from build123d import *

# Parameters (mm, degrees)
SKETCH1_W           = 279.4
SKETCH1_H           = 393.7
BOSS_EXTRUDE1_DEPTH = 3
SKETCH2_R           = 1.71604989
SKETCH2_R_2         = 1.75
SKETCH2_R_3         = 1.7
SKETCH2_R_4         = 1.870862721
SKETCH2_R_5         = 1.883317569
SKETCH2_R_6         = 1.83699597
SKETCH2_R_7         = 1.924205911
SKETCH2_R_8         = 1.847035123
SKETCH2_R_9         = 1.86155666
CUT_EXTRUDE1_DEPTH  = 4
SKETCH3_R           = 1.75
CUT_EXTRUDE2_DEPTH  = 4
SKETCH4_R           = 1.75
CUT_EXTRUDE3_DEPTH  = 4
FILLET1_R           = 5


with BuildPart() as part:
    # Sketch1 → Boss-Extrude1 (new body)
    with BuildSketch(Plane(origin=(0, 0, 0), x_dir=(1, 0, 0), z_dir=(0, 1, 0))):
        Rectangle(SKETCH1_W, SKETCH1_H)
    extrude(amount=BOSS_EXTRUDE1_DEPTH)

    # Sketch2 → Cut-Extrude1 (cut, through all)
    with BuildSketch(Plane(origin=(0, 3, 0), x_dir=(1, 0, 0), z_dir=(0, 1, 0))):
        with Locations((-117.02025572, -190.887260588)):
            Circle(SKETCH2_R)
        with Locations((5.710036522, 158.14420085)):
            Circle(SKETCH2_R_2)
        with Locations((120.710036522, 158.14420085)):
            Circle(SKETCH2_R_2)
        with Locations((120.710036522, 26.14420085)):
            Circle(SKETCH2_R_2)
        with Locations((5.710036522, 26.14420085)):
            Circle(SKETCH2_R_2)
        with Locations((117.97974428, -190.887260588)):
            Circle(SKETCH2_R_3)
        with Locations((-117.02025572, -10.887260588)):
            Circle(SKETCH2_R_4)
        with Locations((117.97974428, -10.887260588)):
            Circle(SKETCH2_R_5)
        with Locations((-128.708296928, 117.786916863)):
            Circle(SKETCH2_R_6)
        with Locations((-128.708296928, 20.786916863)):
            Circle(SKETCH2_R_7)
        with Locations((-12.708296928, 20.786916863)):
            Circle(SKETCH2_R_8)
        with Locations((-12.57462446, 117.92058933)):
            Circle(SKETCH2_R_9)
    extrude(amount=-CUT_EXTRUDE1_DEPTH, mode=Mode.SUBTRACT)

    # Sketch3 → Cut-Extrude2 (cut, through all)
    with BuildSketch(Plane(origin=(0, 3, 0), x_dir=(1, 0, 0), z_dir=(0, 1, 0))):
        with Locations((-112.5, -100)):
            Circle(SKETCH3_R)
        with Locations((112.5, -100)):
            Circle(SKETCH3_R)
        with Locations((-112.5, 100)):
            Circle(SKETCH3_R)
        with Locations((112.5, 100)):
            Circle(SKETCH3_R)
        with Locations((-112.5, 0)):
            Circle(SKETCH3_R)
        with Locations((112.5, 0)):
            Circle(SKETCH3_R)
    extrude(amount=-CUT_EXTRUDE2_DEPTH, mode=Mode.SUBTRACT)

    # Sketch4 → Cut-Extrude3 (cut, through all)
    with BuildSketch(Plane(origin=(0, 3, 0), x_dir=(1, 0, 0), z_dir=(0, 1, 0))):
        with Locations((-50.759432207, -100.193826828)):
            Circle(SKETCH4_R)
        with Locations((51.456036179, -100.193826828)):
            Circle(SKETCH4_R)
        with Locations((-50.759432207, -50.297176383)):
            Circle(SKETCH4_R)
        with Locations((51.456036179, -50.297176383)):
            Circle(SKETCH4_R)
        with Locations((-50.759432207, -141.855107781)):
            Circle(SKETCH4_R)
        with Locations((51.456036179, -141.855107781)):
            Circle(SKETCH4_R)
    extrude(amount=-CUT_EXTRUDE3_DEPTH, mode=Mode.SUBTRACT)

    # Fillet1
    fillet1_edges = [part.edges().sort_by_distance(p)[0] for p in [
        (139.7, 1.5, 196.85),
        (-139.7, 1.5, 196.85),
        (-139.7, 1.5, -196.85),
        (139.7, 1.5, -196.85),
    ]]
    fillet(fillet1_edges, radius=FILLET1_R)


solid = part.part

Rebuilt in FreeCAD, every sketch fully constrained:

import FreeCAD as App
import Part
import Sketcher
from FreeCAD import Vector


def edges_at(feature, points):
    """Names of the edges that pass closest to the given points."""
    edges = feature.Shape.Edges
    near = lambda p: min(range(len(edges)), key=lambda i: edges[i].distToShape(Part.Vertex(*p))[0])
    return sorted({f"Edge{near(p) + 1}" for p in points})

doc = App.newDocument("Part")
params = doc.addObject("Spreadsheet::Sheet", "Params")
for row, (alias, value) in enumerate([
    ("sketch1_width", "279.4 mm"),
    ("sketch1_height", "393.7 mm"),
    ("pad1_length", "3 mm"),
    ("sketch2_diameter", "3.5 mm"),
    ("sketch2_diameter2", "3.4 mm"),
    ("sketch3_diameter", "3.5 mm"),
    ("sketch4_diameter", "3.5 mm"),
    ("fillet_radius", "5 mm"),
], start=1):
    params.set(f"A{row}", alias)
    params.set(f"B{row}", "=" + value)
    params.setAlias(f"B{row}", alias)

body = doc.addObject("PartDesign::Body", "Body")

sketch1 = body.newObject("Sketcher::SketchObject", "Sketch")
sketch1.AttachmentSupport = (doc.getObject("XZ_Plane"), [""])
sketch1.MapMode = "FlatFace"
sketch1.addGeometry(Part.LineSegment(Vector(-140, -197, 0), Vector(-140, 197, 0)), False)
sketch1.addGeometry(Part.LineSegment(Vector(-140, 197, 0), Vector(140, 197, 0)), False)
sketch1.addGeometry(Part.LineSegment(Vector(140, 197, 0), Vector(140, -197, 0)), False)
sketch1.addGeometry(Part.LineSegment(Vector(140, -197, 0), Vector(-140, -197, 0)), False)
sketch1.addConstraint(Sketcher.Constraint("Coincident", 0, 2, 1, 1))
sketch1.addConstraint(Sketcher.Constraint("Coincident", 1, 2, 2, 1))
sketch1.addConstraint(Sketcher.Constraint("Coincident", 2, 2, 3, 1))
sketch1.addConstraint(Sketcher.Constraint("Coincident", 3, 2, 0, 1))
sketch1.addConstraint(Sketcher.Constraint("Vertical", 0))
sketch1.addConstraint(Sketcher.Constraint("Horizontal", 1))
sketch1.addConstraint(Sketcher.Constraint("Vertical", 2))
sketch1.addConstraint(Sketcher.Constraint("Horizontal", 3))
sketch1.addConstraint(Sketcher.Constraint("Symmetric", 0, 2, 2, 2, -1, 1))
sketch1.addConstraint(Sketcher.Constraint("DistanceX", 1, 1, 1, 2, 279.4))
sketch1.addConstraint(Sketcher.Constraint("DistanceY", 0, 1, 0, 2, 393.7))
sketch1.setExpression("Constraints[9]", "Params.sketch1_width")
sketch1.setExpression("Constraints[10]", "Params.sketch1_height")
pad1 = body.newObject("PartDesign::Pad", "Pad")
pad1.Profile = sketch1
pad1.setExpression("Length", "Params.pad1_length")
pad1.Reversed = True

sketch2 = body.newObject("Sketcher::SketchObject", "Sketch001")
sketch2.AttachmentSupport = (doc.getObject("XZ_Plane"), [""])
sketch2.MapMode = "FlatFace"
sketch2.AttachmentOffset = App.Placement(Vector(0, 0, -3), App.Rotation())
sketch2.addGeometry(Part.Circle(Vector(-117, 190.9, 0), Vector(0, 0, 1), 1.7), False)
sketch2.addGeometry(Part.Circle(Vector(5.7, -158.1, 0), Vector(0, 0, 1), 1.8), False)
sketch2.addGeometry(Part.Circle(Vector(120.7, -158.1, 0), Vector(0, 0, 1), 1.8), False)
sketch2.addGeometry(Part.Circle(Vector(120.7, -26.1, 0), Vector(0, 0, 1), 1.8), False)
sketch2.addGeometry(Part.Circle(Vector(5.7, -26.1, 0), Vector(0, 0, 1), 1.8), False)
sketch2.addGeometry(Part.Circle(Vector(118, 190.9, 0), Vector(0, 0, 1), 1.7), False)
sketch2.addGeometry(Part.Circle(Vector(-117, 10.9, 0), Vector(0, 0, 1), 1.9), False)
sketch2.addGeometry(Part.Circle(Vector(118, 10.9, 0), Vector(0, 0, 1), 1.9), False)
sketch2.addGeometry(Part.Circle(Vector(-128.7, -117.8, 0), Vector(0, 0, 1), 1.8), False)
sketch2.addGeometry(Part.Circle(Vector(-128.7, -20.8, 0), Vector(0, 0, 1), 1.9), False)
sketch2.addGeometry(Part.Circle(Vector(-12.7, -20.8, 0), Vector(0, 0, 1), 1.8), False)
sketch2.addGeometry(Part.Circle(Vector(-12.6, -117.9, 0), Vector(0, 0, 1), 1.9), False)
sketch2.addConstraint(Sketcher.Constraint("Equal", 1, 2))
sketch2.addConstraint(Sketcher.Constraint("Equal", 2, 3))
sketch2.addConstraint(Sketcher.Constraint("Equal", 3, 4))
sketch2.addConstraint(Sketcher.Constraint("Horizontal", 1, 3, 2, 3))
sketch2.addConstraint(Sketcher.Constraint("Horizontal", 3, 3, 4, 3))
sketch2.addConstraint(Sketcher.Constraint("Horizontal", 0, 3, 5, 3))
sketch2.addConstraint(Sketcher.Constraint("Horizontal", 6, 3, 7, 3))
sketch2.addConstraint(Sketcher.Constraint("Horizontal", 9, 3, 10, 3))
sketch2.addConstraint(Sketcher.Constraint("Vertical", 2, 3, 3, 3))
sketch2.addConstraint(Sketcher.Constraint("Vertical", 1, 3, 4, 3))
sketch2.addConstraint(Sketcher.Constraint("Vertical", 0, 3, 6, 3))
sketch2.addConstraint(Sketcher.Constraint("Vertical", 5, 3, 7, 3))
sketch2.addConstraint(Sketcher.Constraint("Vertical", 8, 3, 9, 3))
sketch2.addConstraint(Sketcher.Constraint("Diameter", 1, 3.5))
sketch2.addConstraint(Sketcher.Constraint("Diameter", 5, 3.4))
sketch2.addConstraint(Sketcher.Constraint("DistanceX", 1, 3, 2, 3, 115.0))
sketch2.addConstraint(Sketcher.Constraint("DistanceY", 2, 3, 3, 3, 132.0))
sketch2.addConstraint(Sketcher.Constraint("DistanceX", 0, 3, 5, 3, 235.0))
sketch2.addConstraint(Sketcher.Constraint("DistanceY", 6, 3, 0, 3, 180.0))
sketch2.addConstraint(Sketcher.Constraint("DistanceY", 8, 3, 9, 3, 97.0))
sketch2.addConstraint(Sketcher.Constraint("DistanceX", 9, 3, 10, 3, 116.0))
sketch2.addConstraint(Sketcher.Constraint("Diameter", 0, 3.4321))
sketch2.addConstraint(Sketcher.Constraint("Diameter", 8, 3.673992))
sketch2.addConstraint(Sketcher.Constraint("Diameter", 9, 3.848412))
sketch2.addConstraint(Sketcher.Constraint("Diameter", 10, 3.69407))
sketch2.addConstraint(Sketcher.Constraint("Diameter", 6, 3.741725))
sketch2.addConstraint(Sketcher.Constraint("Diameter", 7, 3.766635))
sketch2.addConstraint(Sketcher.Constraint("Diameter", 11, 3.723113))
sketch2.addConstraint(Sketcher.Constraint("DistanceY", 1, 3, -1, 1, 158.144201))
sketch2.addConstraint(Sketcher.Constraint("DistanceY", -1, 1, 0, 3, 190.887261))
sketch2.addConstraint(Sketcher.Constraint("DistanceY", 11, 3, -1, 1, 117.920589))
sketch2.addConstraint(Sketcher.Constraint("DistanceX", 8, 3, 6, 3, 11.688041))
sketch2.addConstraint(Sketcher.Constraint("DistanceX", 11, 3, 1, 3, 18.284661))
sketch2.addConstraint(Sketcher.Constraint("DistanceX", 0, 3, -1, 1, 117.020256))
sketch2.addConstraint(Sketcher.Constraint("DistanceX", -1, 1, 1, 3, 5.710037))
sketch2.addConstraint(Sketcher.Constraint("DistanceY", 8, 3, -1, 1, 117.786917))
sketch2.setExpression("Constraints[13]", "Params.sketch2_diameter")
sketch2.setExpression("Constraints[14]", "Params.sketch2_diameter2")
pocket1 = body.newObject("PartDesign::Pocket", "Pocket")
pocket1.Profile = sketch2
pocket1.Type = "ThroughAll"
pocket1.Reversed = True

sketch3 = body.newObject("Sketcher::SketchObject", "Sketch002")
sketch3.AttachmentSupport = (doc.getObject("XZ_Plane"), [""])
sketch3.MapMode = "FlatFace"
sketch3.AttachmentOffset = App.Placement(Vector(0, 0, -3), App.Rotation())
sketch3.addGeometry(Part.Circle(Vector(-112.5, 100, 0), Vector(0, 0, 1), 1.8), False)
sketch3.addGeometry(Part.Circle(Vector(112.5, 100, 0), Vector(0, 0, 1), 1.8), False)
sketch3.addGeometry(Part.Circle(Vector(-112.5, -100, 0), Vector(0, 0, 1), 1.8), False)
sketch3.addGeometry(Part.Circle(Vector(112.5, -100, 0), Vector(0, 0, 1), 1.8), False)
sketch3.addGeometry(Part.Circle(Vector(-112.5, 0, 0), Vector(0, 0, 1), 1.8), False)
sketch3.addGeometry(Part.Circle(Vector(112.5, 0, 0), Vector(0, 0, 1), 1.8), False)
sketch3.addConstraint(Sketcher.Constraint("Equal", 0, 1))
sketch3.addConstraint(Sketcher.Constraint("Equal", 1, 2))
sketch3.addConstraint(Sketcher.Constraint("Equal", 2, 3))
sketch3.addConstraint(Sketcher.Constraint("Equal", 3, 4))
sketch3.addConstraint(Sketcher.Constraint("Equal", 4, 5))
sketch3.addConstraint(Sketcher.Constraint("Symmetric", 1, 3, 2, 3, -1, 1))
sketch3.addConstraint(Sketcher.Constraint("Symmetric", 0, 3, 3, 3, -1, 1))
sketch3.addConstraint(Sketcher.Constraint("Symmetric", 4, 3, 5, 3, -1, 1))
sketch3.addConstraint(Sketcher.Constraint("Symmetric", 0, 3, 1, 3, -2))
sketch3.addConstraint(Sketcher.Constraint("PointOnObject", 4, 3, -1))
sketch3.addConstraint(Sketcher.Constraint("Vertical", 2, 3, 4, 3))
sketch3.addConstraint(Sketcher.Constraint("Diameter", 0, 3.5))
sketch3.addConstraint(Sketcher.Constraint("DistanceY", -1, 1, 0, 3, 100.0))
sketch3.addConstraint(Sketcher.Constraint("DistanceX", 0, 3, 1, 3, 225.0))
sketch3.setExpression("Constraints[11]", "Params.sketch3_diameter")
pocket2 = body.newObject("PartDesign::Pocket", "Pocket001")
pocket2.Profile = sketch3
pocket2.Type = "ThroughAll"
pocket2.Reversed = True

sketch4 = body.newObject("Sketcher::SketchObject", "Sketch003")
sketch4.AttachmentSupport = (doc.getObject("XZ_Plane"), [""])
sketch4.MapMode = "FlatFace"
sketch4.AttachmentOffset = App.Placement(Vector(0, 0, -3), App.Rotation())
sketch4.addGeometry(Part.Circle(Vector(-50.8, 100.2, 0), Vector(0, 0, 1), 1.8), False)
sketch4.addGeometry(Part.Circle(Vector(51.5, 100.2, 0), Vector(0, 0, 1), 1.8), False)
sketch4.addGeometry(Part.Circle(Vector(-50.8, 50.3, 0), Vector(0, 0, 1), 1.8), False)
sketch4.addGeometry(Part.Circle(Vector(51.5, 50.3, 0), Vector(0, 0, 1), 1.8), False)
sketch4.addGeometry(Part.Circle(Vector(-50.8, 141.9, 0), Vector(0, 0, 1), 1.8), False)
sketch4.addGeometry(Part.Circle(Vector(51.5, 141.9, 0), Vector(0, 0, 1), 1.8), False)
sketch4.addConstraint(Sketcher.Constraint("Equal", 0, 1))
sketch4.addConstraint(Sketcher.Constraint("Equal", 1, 2))
sketch4.addConstraint(Sketcher.Constraint("Equal", 2, 3))
sketch4.addConstraint(Sketcher.Constraint("Equal", 3, 4))
sketch4.addConstraint(Sketcher.Constraint("Equal", 4, 5))
sketch4.addConstraint(Sketcher.Constraint("Horizontal", 0, 3, 1, 3))
sketch4.addConstraint(Sketcher.Constraint("Horizontal", 2, 3, 3, 3))
sketch4.addConstraint(Sketcher.Constraint("Horizontal", 4, 3, 5, 3))
sketch4.addConstraint(Sketcher.Constraint("Vertical", 0, 3, 2, 3))
sketch4.addConstraint(Sketcher.Constraint("Vertical", 1, 3, 3, 3))
sketch4.addConstraint(Sketcher.Constraint("Vertical", 2, 3, 4, 3))
sketch4.addConstraint(Sketcher.Constraint("Vertical", 3, 3, 5, 3))
sketch4.addConstraint(Sketcher.Constraint("Diameter", 0, 3.5))
sketch4.addConstraint(Sketcher.Constraint("DistanceX", 0, 3, 1, 3, 102.215468))
sketch4.addConstraint(Sketcher.Constraint("DistanceY", 2, 3, 0, 3, 49.89665))
sketch4.addConstraint(Sketcher.Constraint("DistanceY", 0, 3, 4, 3, 41.661281))
sketch4.addConstraint(Sketcher.Constraint("DistanceX", 0, 3, -1, 1, 50.759432))
sketch4.addConstraint(Sketcher.Constraint("DistanceY", -1, 1, 0, 3, 100.193827))
sketch4.setExpression("Constraints[12]", "Params.sketch4_diameter")
pocket3 = body.newObject("PartDesign::Pocket", "Pocket002")
pocket3.Profile = sketch4
pocket3.Type = "ThroughAll"
pocket3.Reversed = True
doc.recompute()

fillet = body.newObject("PartDesign::Fillet", "Fillet")
fillet.Base = (pocket3, edges_at(pocket3, [
    (139.7, 1.5, 196.85),
    (-139.7, 1.5, 196.85),
    (-139.7, 1.5, -196.85),
    (139.7, 1.5, -196.85),
]))
fillet.setExpression("Radius", "Params.fillet_radius")

doc.recompute()
